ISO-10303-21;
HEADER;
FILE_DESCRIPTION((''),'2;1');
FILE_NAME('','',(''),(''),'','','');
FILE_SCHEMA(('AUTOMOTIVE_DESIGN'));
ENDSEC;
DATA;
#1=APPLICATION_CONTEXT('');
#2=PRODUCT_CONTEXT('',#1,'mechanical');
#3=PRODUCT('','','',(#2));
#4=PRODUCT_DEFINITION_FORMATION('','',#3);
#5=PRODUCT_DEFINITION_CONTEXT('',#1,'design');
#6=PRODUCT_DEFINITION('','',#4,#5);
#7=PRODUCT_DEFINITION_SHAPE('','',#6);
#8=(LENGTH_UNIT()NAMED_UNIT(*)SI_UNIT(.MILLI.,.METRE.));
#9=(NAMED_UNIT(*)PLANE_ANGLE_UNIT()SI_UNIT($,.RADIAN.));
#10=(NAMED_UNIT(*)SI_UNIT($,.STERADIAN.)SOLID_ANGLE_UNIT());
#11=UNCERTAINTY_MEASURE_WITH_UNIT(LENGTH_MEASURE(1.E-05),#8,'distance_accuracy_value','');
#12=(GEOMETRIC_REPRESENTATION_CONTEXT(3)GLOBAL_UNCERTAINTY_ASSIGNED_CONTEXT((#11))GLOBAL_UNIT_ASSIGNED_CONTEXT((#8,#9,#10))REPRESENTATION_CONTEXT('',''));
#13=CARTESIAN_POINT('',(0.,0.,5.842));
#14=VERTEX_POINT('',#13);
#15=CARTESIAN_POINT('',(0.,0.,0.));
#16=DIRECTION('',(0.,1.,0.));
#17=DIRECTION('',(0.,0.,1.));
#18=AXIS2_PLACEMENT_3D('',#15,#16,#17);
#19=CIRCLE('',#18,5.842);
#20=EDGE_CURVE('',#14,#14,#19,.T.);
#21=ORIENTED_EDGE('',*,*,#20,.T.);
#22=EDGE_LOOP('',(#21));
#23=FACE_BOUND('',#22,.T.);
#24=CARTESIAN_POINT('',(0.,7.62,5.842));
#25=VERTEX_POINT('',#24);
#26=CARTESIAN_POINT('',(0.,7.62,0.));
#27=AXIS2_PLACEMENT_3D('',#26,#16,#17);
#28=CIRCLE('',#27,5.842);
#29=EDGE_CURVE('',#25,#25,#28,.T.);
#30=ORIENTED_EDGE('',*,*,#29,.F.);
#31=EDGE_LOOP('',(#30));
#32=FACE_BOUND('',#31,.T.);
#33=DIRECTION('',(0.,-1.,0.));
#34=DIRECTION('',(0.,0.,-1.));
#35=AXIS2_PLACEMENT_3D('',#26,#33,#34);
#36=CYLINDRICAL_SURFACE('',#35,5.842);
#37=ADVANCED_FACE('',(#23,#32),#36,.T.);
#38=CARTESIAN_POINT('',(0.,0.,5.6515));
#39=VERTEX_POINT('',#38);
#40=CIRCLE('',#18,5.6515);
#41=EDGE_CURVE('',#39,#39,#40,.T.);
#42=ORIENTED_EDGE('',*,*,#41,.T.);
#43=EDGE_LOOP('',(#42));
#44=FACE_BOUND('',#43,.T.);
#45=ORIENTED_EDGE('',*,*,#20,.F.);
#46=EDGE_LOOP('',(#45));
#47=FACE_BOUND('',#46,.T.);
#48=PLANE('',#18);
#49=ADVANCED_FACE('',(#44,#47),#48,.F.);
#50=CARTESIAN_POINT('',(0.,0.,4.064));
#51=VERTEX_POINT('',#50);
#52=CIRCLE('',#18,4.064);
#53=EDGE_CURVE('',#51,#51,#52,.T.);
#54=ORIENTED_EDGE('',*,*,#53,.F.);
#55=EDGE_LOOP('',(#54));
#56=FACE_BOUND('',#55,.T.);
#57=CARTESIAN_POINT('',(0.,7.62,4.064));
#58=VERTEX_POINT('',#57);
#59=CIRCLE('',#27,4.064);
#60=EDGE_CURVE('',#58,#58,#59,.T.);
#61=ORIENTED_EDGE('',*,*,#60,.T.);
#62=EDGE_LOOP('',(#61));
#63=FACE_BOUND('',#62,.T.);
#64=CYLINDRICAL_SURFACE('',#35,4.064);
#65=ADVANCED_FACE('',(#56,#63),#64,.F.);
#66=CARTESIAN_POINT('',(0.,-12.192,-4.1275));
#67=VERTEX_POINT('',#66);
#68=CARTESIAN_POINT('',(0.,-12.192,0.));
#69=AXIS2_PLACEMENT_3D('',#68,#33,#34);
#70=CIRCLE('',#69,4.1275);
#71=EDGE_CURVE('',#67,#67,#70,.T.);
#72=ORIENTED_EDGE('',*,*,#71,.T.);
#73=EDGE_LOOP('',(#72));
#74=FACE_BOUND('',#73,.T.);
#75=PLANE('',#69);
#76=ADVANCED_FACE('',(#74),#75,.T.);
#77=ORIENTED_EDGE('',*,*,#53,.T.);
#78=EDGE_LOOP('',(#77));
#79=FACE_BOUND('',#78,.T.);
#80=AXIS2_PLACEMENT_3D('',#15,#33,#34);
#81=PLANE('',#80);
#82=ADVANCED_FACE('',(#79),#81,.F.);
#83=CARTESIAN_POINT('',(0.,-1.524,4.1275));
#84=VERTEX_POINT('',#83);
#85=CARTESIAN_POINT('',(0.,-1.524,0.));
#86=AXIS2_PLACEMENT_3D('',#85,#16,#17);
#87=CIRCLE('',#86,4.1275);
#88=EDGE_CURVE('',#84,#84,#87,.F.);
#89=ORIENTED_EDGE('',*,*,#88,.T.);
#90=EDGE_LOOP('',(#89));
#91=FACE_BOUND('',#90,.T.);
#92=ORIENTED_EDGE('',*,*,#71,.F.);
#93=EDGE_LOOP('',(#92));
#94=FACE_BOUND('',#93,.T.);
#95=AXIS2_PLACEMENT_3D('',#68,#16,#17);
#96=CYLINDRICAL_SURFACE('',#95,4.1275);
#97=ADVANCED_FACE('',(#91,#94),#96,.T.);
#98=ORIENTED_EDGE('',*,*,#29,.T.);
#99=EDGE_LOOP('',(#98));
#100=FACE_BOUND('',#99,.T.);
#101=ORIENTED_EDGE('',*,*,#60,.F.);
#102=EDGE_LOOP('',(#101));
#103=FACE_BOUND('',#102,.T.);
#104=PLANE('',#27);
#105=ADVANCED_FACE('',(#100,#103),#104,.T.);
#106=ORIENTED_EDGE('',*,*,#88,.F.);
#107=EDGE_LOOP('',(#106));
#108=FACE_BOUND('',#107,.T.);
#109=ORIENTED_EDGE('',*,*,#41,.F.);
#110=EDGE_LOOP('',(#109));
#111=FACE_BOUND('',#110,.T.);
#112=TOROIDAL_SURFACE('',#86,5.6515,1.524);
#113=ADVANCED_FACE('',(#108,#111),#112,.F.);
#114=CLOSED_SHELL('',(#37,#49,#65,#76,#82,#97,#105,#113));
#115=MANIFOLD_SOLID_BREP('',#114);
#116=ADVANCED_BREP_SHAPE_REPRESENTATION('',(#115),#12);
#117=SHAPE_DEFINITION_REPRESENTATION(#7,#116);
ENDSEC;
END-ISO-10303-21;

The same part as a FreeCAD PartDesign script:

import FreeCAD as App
import Part
import Sketcher
from FreeCAD import Vector
Q = App.Units.Quantity


def edges_at(feature, points):
    """Names of the edges that pass closest to the given points."""
    edges = feature.Shape.Edges
    near = lambda p: min(range(len(edges)), key=lambda i: edges[i].distToShape(Part.Vertex(*p))[0])
    return sorted({f"Edge{near(p) + 1}" for p in points})

doc = App.newDocument("Part")
body = doc.addObject("PartDesign::Body", "Body")

sketch1 = body.newObject("Sketcher::SketchObject", "Sketch")
sketch1.AttachmentSupport = (doc.getObject("XZ_Plane"), [""])
sketch1.MapMode = "FlatFace"
sketch1.addGeometry([
    Part.Circle(Vector(0, 0, 0), Vector(0, 0, 1), 5.8),
    Part.Circle(Vector(0, 0, 0), Vector(0, 0, 1), 4.1),
], False)
sketch1.addConstraint([
    Sketcher.Constraint("Coincident", 0, 3, -1, 1),
    Sketcher.Constraint("Coincident", 1, 3, -1, 1),
    Sketcher.Constraint("Diameter", 0, Q("0.46 in")),
    Sketcher.Constraint("Diameter", 1, Q("0.32 in")),
])
pad1 = body.newObject("PartDesign::Pad", "Pad")
pad1.Profile = sketch1
pad1.Length = Q("0.3 in")
pad1.Reversed = True

sketch2 = body.newObject("Sketcher::SketchObject", "Sketch001")
sketch2.AttachmentSupport = (doc.getObject("XZ_Plane"), [""])
sketch2.MapMode = "FlatFace"
sketch2.addGeometry(Part.Circle(Vector(0, 0, 0), Vector(0, 0, 1), 4.1), False)
sketch2.addConstraint([
    Sketcher.Constraint("Coincident", 0, 3, -1, 1),
    Sketcher.Constraint("Diameter", 0, Q("0.325 in")),
])
pad2 = body.newObject("PartDesign::Pad", "Pad001")
pad2.Profile = sketch2
pad2.Length = Q("0.48 in")
doc.recompute()

fillet = body.newObject("PartDesign::Fillet", "Fillet")
fillet.Base = (pad2, edges_at(pad2, [(0, 0, -4.128)]))
fillet.Radius = Q("0.06 in")

doc.recompute()
